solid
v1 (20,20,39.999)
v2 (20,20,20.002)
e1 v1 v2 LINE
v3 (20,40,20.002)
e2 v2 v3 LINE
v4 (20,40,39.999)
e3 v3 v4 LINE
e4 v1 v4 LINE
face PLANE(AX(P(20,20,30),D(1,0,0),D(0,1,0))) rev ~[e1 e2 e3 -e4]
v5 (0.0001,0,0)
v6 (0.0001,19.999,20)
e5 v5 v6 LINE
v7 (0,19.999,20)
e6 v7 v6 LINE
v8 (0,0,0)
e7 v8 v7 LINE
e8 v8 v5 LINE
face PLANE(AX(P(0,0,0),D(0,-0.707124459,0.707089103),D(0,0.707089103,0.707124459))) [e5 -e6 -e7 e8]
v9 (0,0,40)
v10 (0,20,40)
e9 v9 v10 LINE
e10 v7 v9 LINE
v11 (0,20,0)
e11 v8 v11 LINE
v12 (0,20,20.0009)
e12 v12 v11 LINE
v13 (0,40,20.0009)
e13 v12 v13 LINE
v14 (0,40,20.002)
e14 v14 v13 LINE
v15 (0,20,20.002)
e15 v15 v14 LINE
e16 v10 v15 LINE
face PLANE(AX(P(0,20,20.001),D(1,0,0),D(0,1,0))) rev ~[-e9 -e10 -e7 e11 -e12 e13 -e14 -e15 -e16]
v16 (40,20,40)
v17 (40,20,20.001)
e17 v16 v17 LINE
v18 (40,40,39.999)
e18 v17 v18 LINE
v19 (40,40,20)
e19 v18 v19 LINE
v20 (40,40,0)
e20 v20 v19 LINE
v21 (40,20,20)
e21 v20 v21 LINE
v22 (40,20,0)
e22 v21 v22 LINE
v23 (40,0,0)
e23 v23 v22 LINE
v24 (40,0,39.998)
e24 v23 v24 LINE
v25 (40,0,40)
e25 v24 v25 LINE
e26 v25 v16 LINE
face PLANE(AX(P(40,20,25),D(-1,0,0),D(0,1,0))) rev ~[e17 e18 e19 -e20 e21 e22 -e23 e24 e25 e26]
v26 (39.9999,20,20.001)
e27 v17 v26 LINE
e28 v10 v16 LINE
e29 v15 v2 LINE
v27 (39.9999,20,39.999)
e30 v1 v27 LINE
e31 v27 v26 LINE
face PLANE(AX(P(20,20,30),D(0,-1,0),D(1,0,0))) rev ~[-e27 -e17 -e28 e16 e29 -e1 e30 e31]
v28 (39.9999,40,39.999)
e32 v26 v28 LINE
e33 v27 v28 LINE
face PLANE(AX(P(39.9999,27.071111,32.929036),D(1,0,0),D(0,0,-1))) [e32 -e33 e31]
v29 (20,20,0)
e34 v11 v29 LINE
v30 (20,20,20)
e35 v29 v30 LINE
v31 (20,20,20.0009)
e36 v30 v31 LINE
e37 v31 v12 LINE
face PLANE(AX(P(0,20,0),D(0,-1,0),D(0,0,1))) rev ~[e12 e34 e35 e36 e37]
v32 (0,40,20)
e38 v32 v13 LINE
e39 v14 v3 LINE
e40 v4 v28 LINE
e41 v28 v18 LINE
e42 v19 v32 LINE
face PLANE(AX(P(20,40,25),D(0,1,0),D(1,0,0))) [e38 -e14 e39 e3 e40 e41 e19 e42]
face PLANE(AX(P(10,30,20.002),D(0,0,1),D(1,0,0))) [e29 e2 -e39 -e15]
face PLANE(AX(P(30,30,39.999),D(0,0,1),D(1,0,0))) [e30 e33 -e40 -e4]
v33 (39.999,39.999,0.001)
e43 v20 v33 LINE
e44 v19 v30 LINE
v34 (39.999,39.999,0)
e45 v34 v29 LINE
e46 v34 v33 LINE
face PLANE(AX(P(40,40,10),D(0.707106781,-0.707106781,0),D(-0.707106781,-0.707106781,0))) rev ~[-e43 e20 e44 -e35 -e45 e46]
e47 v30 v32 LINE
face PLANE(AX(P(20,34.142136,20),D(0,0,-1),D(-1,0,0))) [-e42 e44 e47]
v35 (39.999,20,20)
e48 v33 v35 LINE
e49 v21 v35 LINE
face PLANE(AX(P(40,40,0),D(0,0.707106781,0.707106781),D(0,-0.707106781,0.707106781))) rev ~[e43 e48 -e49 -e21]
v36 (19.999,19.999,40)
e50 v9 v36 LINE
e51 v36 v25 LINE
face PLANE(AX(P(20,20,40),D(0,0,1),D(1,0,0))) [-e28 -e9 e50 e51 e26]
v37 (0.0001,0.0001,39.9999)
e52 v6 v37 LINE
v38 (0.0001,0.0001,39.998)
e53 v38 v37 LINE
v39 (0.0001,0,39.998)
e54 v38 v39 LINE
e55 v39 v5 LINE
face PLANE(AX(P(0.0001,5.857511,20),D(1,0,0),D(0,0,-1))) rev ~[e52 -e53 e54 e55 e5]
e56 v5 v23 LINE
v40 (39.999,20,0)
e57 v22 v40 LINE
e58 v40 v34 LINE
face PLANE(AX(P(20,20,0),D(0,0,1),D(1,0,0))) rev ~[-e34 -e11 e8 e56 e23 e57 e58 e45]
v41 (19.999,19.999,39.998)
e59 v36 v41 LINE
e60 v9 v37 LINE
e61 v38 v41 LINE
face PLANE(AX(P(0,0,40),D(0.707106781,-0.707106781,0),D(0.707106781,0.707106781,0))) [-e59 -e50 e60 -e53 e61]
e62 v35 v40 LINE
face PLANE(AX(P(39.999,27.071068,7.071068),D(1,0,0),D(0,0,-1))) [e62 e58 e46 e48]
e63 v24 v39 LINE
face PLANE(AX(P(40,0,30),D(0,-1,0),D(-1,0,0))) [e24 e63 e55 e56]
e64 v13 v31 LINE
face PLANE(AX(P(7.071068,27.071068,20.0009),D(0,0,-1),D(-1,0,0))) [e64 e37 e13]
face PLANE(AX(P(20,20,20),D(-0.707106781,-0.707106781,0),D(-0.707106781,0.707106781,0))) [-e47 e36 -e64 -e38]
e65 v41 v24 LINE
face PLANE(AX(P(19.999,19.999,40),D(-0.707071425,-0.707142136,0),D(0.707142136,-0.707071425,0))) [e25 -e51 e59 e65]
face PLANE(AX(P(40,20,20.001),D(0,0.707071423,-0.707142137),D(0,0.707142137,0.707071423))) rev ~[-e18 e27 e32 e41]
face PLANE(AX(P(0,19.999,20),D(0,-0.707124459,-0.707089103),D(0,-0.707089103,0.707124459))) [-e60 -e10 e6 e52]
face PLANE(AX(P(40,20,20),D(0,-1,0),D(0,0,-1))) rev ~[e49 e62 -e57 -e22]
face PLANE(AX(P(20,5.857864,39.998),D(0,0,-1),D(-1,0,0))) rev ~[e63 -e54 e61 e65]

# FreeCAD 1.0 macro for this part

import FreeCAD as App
import Part
import Sketcher
from FreeCAD import Vector
Q = App.Units.Quantity

doc = App.newDocument("Part")
body = doc.addObject("PartDesign::Body", "Body")

sketch1 = body.newObject("Sketcher::SketchObject", "Sketch")
sketch1.AttachmentSupport = (doc.getObject("XY_Plane"), [""])
sketch1.MapMode = "FlatFace"
sketch1.addGeometry([
    Part.LineSegment(Vector(0, 40, 0), Vector(0, 0, 0)),
    Part.LineSegment(Vector(0, 0, 0), Vector(40, 0, 0)),
    Part.LineSegment(Vector(40, 0, 0), Vector(40, 40, 0)),
    Part.LineSegment(Vector(40, 40, 0), Vector(0, 40, 0)),
], False)
sketch1.addConstraint([
    Sketcher.Constraint("Coincident", 0, 2, 1, 1),
    Sketcher.Constraint("Coincident", 1, 2, 2, 1),
    Sketcher.Constraint("Coincident", 2, 2, 3, 1),
    Sketcher.Constraint("Coincident", 3, 2, 0, 1),
    Sketcher.Constraint("Vertical", 0),
    Sketcher.Constraint("Horizontal", 1),
    Sketcher.Constraint("Vertical", 2),
    Sketcher.Constraint("Horizontal", 3),
    Sketcher.Constraint("Coincident", 0, 2, -1, 1),
    Sketcher.Constraint("Equal", 3, 0),
    Sketcher.Constraint("DistanceX", 1, 1, 1, 2, 40.0),
])
pad1 = body.newObject("PartDesign::Pad", "Pad")
pad1.Profile = sketch1
pad1.Length = 40

sketch2 = body.newObject("Sketcher::SketchObject", "Sketch001")
sketch2.AttachmentSupport = (doc.getObject("XY_Plane"), [""])
sketch2.MapMode = "FlatFace"
sketch2.AttachmentOffset = App.Placement(Vector(0, 0, 40), App.Rotation())
sketch2.addGeometry([
    Part.LineSegment(Vector(20, 40, 0), Vector(20, 20, 0)),
    Part.LineSegment(Vector(20, 20, 0), Vector(40, 20, 0)),
    Part.LineSegment(Vector(40, 20, 0), Vector(40, 40, 0)),
    Part.LineSegment(Vector(40, 40, 0), Vector(20, 40, 0)),
], False)
sketch2.addConstraint([
    Sketcher.Constraint("Coincident", 0, 2, 1, 1),
    Sketcher.Constraint("Coincident", 1, 2, 2, 1),
    Sketcher.Constraint("Coincident", 2, 2, 3, 1),
    Sketcher.Constraint("Coincident", 3, 2, 0, 1),
    Sketcher.Constraint("Vertical", 0),
    Sketcher.Constraint("Horizontal", 1),
    Sketcher.Constraint("Vertical", 2),
    Sketcher.Constraint("Horizontal", 3),
    Sketcher.Constraint("Equal", 3, 0),
    Sketcher.Constraint("DistanceX", 1, 1, 1, 2, 20.0),
    Sketcher.Constraint("DistanceX", -1, 1, 0, 2, 20.0),
    Sketcher.Constraint("DistanceY", -1, 1, 0, 2, 20.0),
])
pocket1 = body.newObject("PartDesign::Pocket", "Pocket")
pocket1.Profile = sketch2
pocket1.Length = 20

sketch3 = body.newObject("Sketcher::SketchObject", "Sketch002")
sketch3.AttachmentSupport = (doc.getObject("XY_Plane"), [""])
sketch3.MapMode = "FlatFace"
sketch3.AttachmentOffset = App.Placement(Vector(0, 0, 40), App.Rotation())
sketch3.addGeometry([
    Part.LineSegment(Vector(0, 40, 0), Vector(0, 20, 0)),
    Part.LineSegment(Vector(0, 20, 0), Vector(20, 20, 0)),
    Part.LineSegment(Vector(20, 20, 0), Vector(20, 40, 0)),
    Part.LineSegment(Vector(20, 40, 0), Vector(0, 40, 0)),
], False)
sketch3.addConstraint([
    Sketcher.Constraint("Coincident", 0, 2, 1, 1),
    Sketcher.Constraint("Coincident", 1, 2, 2, 1),
    Sketcher.Constraint("Coincident", 2, 2, 3, 1),
    Sketcher.Constraint("Coincident", 3, 2, 0, 1),
    Sketcher.Constraint("Vertical", 0),
    Sketcher.Constraint("Horizontal", 1),
    Sketcher.Constraint("Vertical", 2),
    Sketcher.Constraint("Horizontal", 3),
    Sketcher.Constraint("PointOnObject", 0, 2, -2),
    Sketcher.Constraint("Equal", 3, 0),
    Sketcher.Constraint("DistanceX", 1, 1, 1, 2, 20.0),
    Sketcher.Constraint("DistanceY", -1, 1, 0, 2, 20.0),
])
pocket2 = body.newObject("PartDesign::Pocket", "Pocket001")
pocket2.Profile = sketch3
pocket2.Length = 10

sketch4 = body.newObject("Sketcher::SketchObject", "Sketch003")
sketch4.AttachmentSupport = (doc.getObject("XY_Plane"), [""])
sketch4.MapMode = "FlatFace"
sketch4.addGeometry([
    Part.LineSegment(Vector(40, 40, 0), Vector(20, 20, 0)),
    Part.LineSegment(Vector(20, 20, 0), Vector(0, 40, 0)),
    Part.LineSegment(Vector(0, 40, 0), Vector(40, 40, 0)),
], False)
sketch4.addConstraint([
    Sketcher.Constraint("Coincident", 0, 2, 1, 1),
    Sketcher.Constraint("Coincident", 1, 2, 2, 1),
    Sketcher.Constraint("Coincident", 2, 2, 0, 1),
    Sketcher.Constraint("Horizontal", 2),
    Sketcher.Constraint("PointOnObject", 1, 2, -2),
    Sketcher.Constraint("Perpendicular", 0, 1),
    Sketcher.Constraint("Equal", 0, 1),
    Sketcher.Constraint("DistanceX", 2, 1, 2, 2, 40.0),
    Sketcher.Constraint("DistanceY", -1, 1, 0, 2, 20.0),
])
pocket3 = body.newObject("PartDesign::Pocket", "Pocket002")
pocket3.Profile = sketch4
pocket3.Length = 10
pocket3.Reversed = True

sketch5 = body.newObject("Sketcher::SketchObject", "Sketch004")
sketch5.AttachmentSupport = (doc.getObject("XY_Plane"), [""])
sketch5.MapMode = "FlatFace"
sketch5.AttachmentOffset = App.Placement(Vector(0, 0, 20), App.Rotation())
sketch5.addGeometry([
    Part.LineSegment(Vector(20, 40, 0), Vector(20, 20, 0)),
    Part.LineSegment(Vector(20, 20, 0), Vector(40, 20, 0)),
    Part.LineSegment(Vector(40, 20, 0), Vector(40, 40, 0)),
    Part.LineSegment(Vector(40, 40, 0), Vector(20, 40, 0)),
], False)
sketch5.addConstraint([
    Sketcher.Constraint("Coincident", 0, 2, 1, 1),
    Sketcher.Constraint("Coincident", 1, 2, 2, 1),
    Sketcher.Constraint("Coincident", 2, 2, 3, 1),
    Sketcher.Constraint("Coincident", 3, 2, 0, 1),
    Sketcher.Constraint("Vertical", 0),
    Sketcher.Constraint("Horizontal", 1),
    Sketcher.Constraint("Vertical", 2),
    Sketcher.Constraint("Horizontal", 3),
    Sketcher.Constraint("Equal", 3, 0),
    Sketcher.Constraint("DistanceX", 1, 1, 1, 2, 20.0),
    Sketcher.Constraint("DistanceX", -1, 1, 0, 2, 20.0),
    Sketcher.Constraint("DistanceY", -1, 1, 0, 2, 20.0),
])
pad2 = body.newObject("PartDesign::Pad", "Pad001")
pad2.Profile = sketch5
pad2.Length = 10

sketch6 = body.newObject("Sketcher::SketchObject", "Sketch005")
sketch6.AttachmentSupport = (doc.getObject("XY_Plane"), [""])
sketch6.MapMode = "FlatFace"
sketch6.AttachmentOffset = App.Placement(Vector(0, 0, 10), App.Rotation())
sketch6.addGeometry([
    Part.LineSegment(Vector(40, 40, 0), Vector(20, 20, 0)),
    Part.LineSegment(Vector(20, 20, 0), Vector(0, 40, 0)),
    Part.LineSegment(Vector(0, 40, 0), Vector(40, 40, 0)),
], False)
sketch6.addConstraint([
    Sketcher.Constraint("Coincident", 0, 2, 1, 1),
    Sketcher.Constraint("Coincident", 1, 2, 2, 1),
    Sketcher.Constraint("Coincident", 2, 2, 0, 1),
    Sketcher.Constraint("Horizontal", 2),
    Sketcher.Constraint("PointOnObject", 1, 2, -2),
    Sketcher.Constraint("Perpendicular", 0, 1),
    Sketcher.Constraint("Equal", 0, 1),
    Sketcher.Constraint("DistanceX", 2, 1, 2, 2, 40.0),
    Sketcher.Constraint("DistanceY", -1, 1, 0, 2, 20.0),
])
pocket4 = body.newObject("PartDesign::Pocket", "Pocket003")
pocket4.Profile = sketch6
pocket4.Length = 10
pocket4.Reversed = True

sketch7 = body.newObject("Sketcher::SketchObject", "Sketch006")
sketch7.AttachmentSupport = (doc.getObject("XY_Plane"), [""])
sketch7.MapMode = "FlatFace"
sketch7.AttachmentOffset = App.Placement(Vector(0, 0, 30), App.Rotation())
sketch7.addGeometry([
    Part.LineSegment(Vector(20, 40, 0), Vector(20, 20, 0)),
    Part.LineSegment(Vector(20, 20, 0), Vector(40, 20, 0)),
    Part.LineSegment(Vector(40, 20, 0), Vector(40, 40, 0)),
    Part.LineSegment(Vector(40, 40, 0), Vector(20, 40, 0)),
], False)
sketch7.addConstraint([
    Sketcher.Constraint("Coincident", 0, 2, 1, 1),
    Sketcher.Constraint("Coincident", 1, 2, 2, 1),
    Sketcher.Constraint("Coincident", 2, 2, 3, 1),
    Sketcher.Constraint("Coincident", 3, 2, 0, 1),
    Sketcher.Constraint("Vertical", 0),
    Sketcher.Constraint("Horizontal", 1),
    Sketcher.Constraint("Vertical", 2),
    Sketcher.Constraint("Horizontal", 3),
    Sketcher.Constraint("Equal", 3, 0),
    Sketcher.Constraint("DistanceX", 1, 1, 1, 2, 20.0),
    Sketcher.Constraint("DistanceX", -1, 1, 0, 2, 20.0),
    Sketcher.Constraint("DistanceY", -1, 1, 0, 2, 20.0),
])
pocket5 = body.newObject("PartDesign::Pocket", "Pocket004")
pocket5.Profile = sketch7
pocket5.Length = 5

sketch8 = body.newObject("Sketcher::SketchObject", "Sketch007")
sketch8.AttachmentSupport = (doc.getObject("XY_Plane"), [""])
sketch8.MapMode = "FlatFace"
sketch8.AttachmentOffset = App.Placement(Vector(0, 0, 40), App.Rotation())
sketch8.addGeometry([
    Part.LineSegment(Vector(20, 20, 0), Vector(0, 0, 0)),
    Part.LineSegment(Vector(0, 0, 0), Vector(40, 0, 0)),
    Part.LineSegment(Vector(40, 0, 0), Vector(20, 20, 0)),
], False)
sketch8.addConstraint([
    Sketcher.Constraint("Coincident", 0, 2, 1, 1),
    Sketcher.Constraint("Coincident", 1, 2, 2, 1),
    Sketcher.Constraint("Coincident", 2, 2, 0, 1),
    Sketcher.Constraint("Horizontal", 1),
    Sketcher.Constraint("Coincident", 0, 2, -1, 1),
    Sketcher.Constraint("DistanceX", 1, 1, 1, 2, 40.0),
    Sketcher.Constraint("Angle", 0, Q("-135 deg")),
    Sketcher.Constraint("DistanceX", -1, 1, 2, 2, 19.999),
])
pocket6 = body.newObject("PartDesign::Pocket", "Pocket005")
pocket6.Profile = sketch8
pocket6.Length = 10

sketch9 = body.newObject("Sketcher::SketchObject", "Sketch008")
sketch9.AttachmentSupport = (doc.getObject("YZ_Plane"), [""])
sketch9.MapMode = "FlatFace"
sketch9.addGeometry([
    Part.LineSegment(Vector(40, 0, 0), Vector(20, 0, 0)),
    Part.LineSegment(Vector(20, 0, 0), Vector(20, 20, 0)),
    Part.LineSegment(Vector(20, 20, 0), Vector(40, 20, 0)),
    Part.LineSegment(Vector(40, 20, 0), Vector(40, 0, 0)),
], False)
sketch9.addConstraint([
    Sketcher.Constraint("Coincident", 0, 2, 1, 1),
    Sketcher.Constraint("Coincident", 1, 2, 2, 1),
    Sketcher.Constraint("Coincident", 2, 2, 3, 1),
    Sketcher.Constraint("Coincident", 3, 2, 0, 1),
    Sketcher.Constraint("Horizontal", 0),
    Sketcher.Constraint("Vertical", 1),
    Sketcher.Constraint("Horizontal", 2),
    Sketcher.Constraint("Vertical", 3),
    Sketcher.Constraint("PointOnObject", 0, 2, -1),
    Sketcher.Constraint("Equal", 2, 1),
    Sketcher.Constraint("DistanceX", 0, 2, 0, 1, 20.0),
    Sketcher.Constraint("DistanceX", -1, 1, 0, 2, 20.0),
])
pocket7 = body.newObject("PartDesign::Pocket", "Pocket006")
pocket7.Profile = sketch9
pocket7.Length = 20
pocket7.Reversed = True

sketch10 = body.newObject("Sketcher::SketchObject", "Sketch009")
sketch10.AttachmentSupport = (doc.getObject("XY_Plane"), [""])
sketch10.MapMode = "FlatFace"
sketch10.AttachmentOffset = App.Placement(Vector(0, 0, 20), App.Rotation())
sketch10.addGeometry([
    Part.LineSegment(Vector(0, 40, 0), Vector(20, 20, 0)),
    Part.LineSegment(Vector(20, 20, 0), Vector(0, 20, 0)),
    Part.LineSegment(Vector(0, 20, 0), Vector(0, 40, 0)),
], False)
sketch10.addConstraint([
    Sketcher.Constraint("Coincident", 0, 2, 1, 1),
    Sketcher.Constraint("Coincident", 1, 2, 2, 1),
    Sketcher.Constraint("Coincident", 2, 2, 0, 1),
    Sketcher.Constraint("Horizontal", 1),
    Sketcher.Constraint("Vertical", 2),
    Sketcher.Constraint("PointOnObject", 1, 2, -2),
    Sketcher.Constraint("Equal", 1, 2),
    Sketcher.Constraint("DistanceX", 1, 2, 1, 1, 20.0),
    Sketcher.Constraint("DistanceY", -1, 1, 0, 2, 20.0),
])
pocket8 = body.newObject("PartDesign::Pocket", "Pocket007")
pocket8.Profile = sketch10
pocket8.Length = 0.001
pocket8.Reversed = True

sketch11 = body.newObject("Sketcher::SketchObject", "Sketch010")
sketch11.AttachmentSupport = (doc.getObject("YZ_Plane"), [""])
sketch11.MapMode = "FlatFace"
sketch11.AttachmentOffset = App.Placement(Vector(0, 0, 40), App.Rotation())
sketch11.addGeometry([
    Part.LineSegment(Vector(40, 0, 0), Vector(20, 20, 0)),
    Part.LineSegment(Vector(20, 20, 0), Vector(20, 0, 0)),
    Part.LineSegment(Vector(20, 0, 0), Vector(40, 0, 0)),
], False)
sketch11.addConstraint([
    Sketcher.Constraint("Coincident", 0, 2, 1, 1),
    Sketcher.Constraint("Coincident", 1, 2, 2, 1),
    Sketcher.Constraint("Coincident", 2, 2, 0, 1),
    Sketcher.Constraint("Vertical", 1),
    Sketcher.Constraint("Horizontal", 2),
    Sketcher.Constraint("PointOnObject", 1, 2, -1),
    Sketcher.Constraint("Equal", 2, 1),
    Sketcher.Constraint("DistanceX", 2, 1, 2, 2, 20.0),
    Sketcher.Constraint("DistanceX", -1, 1, 0, 2, 20.0),
])
pocket9 = body.newObject("PartDesign::Pocket", "Pocket008")
pocket9.Profile = sketch11
pocket9.Length = 0.001

sketch12 = body.newObject("Sketcher::SketchObject", "Sketch011")
sketch12.AttachmentSupport = (doc.getObject("XY_Plane"), [""])
sketch12.MapMode = "FlatFace"
sketch12.AttachmentOffset = App.Placement(Vector(0, 0, 25), App.Rotation())
sketch12.addGeometry([
    Part.LineSegment(Vector(20, 40, 0), Vector(20, 20, 0)),
    Part.LineSegment(Vector(20, 20, 0), Vector(40, 20, 0)),
    Part.LineSegment(Vector(40, 20, 0), Vector(40, 40, 0)),
    Part.LineSegment(Vector(40, 40, 0), Vector(20, 40, 0)),
], False)
sketch12.addConstraint([
    Sketcher.Constraint("Coincident", 0, 2, 1, 1),
    Sketcher.Constraint("Coincident", 1, 2, 2, 1),
    Sketcher.Constraint("Coincident", 2, 2, 3, 1),
    Sketcher.Constraint("Coincident", 3, 2, 0, 1),
    Sketcher.Constraint("Vertical", 0),
    Sketcher.Constraint("Horizontal", 1),
    Sketcher.Constraint("Vertical", 2),
    Sketcher.Constraint("Horizontal", 3),
    Sketcher.Constraint("Equal", 3, 0),
    Sketcher.Constraint("DistanceX", 1, 1, 1, 2, 20.0),
    Sketcher.Constraint("DistanceX", -1, 1, 0, 2, 20.0),
    Sketcher.Constraint("DistanceY", -1, 1, 0, 2, 20.0),
])
pad3 = body.newObject("PartDesign::Pad", "Pad002")
pad3.Profile = sketch12
pad3.Length = 14.999

sketch13 = body.newObject("Sketcher::SketchObject", "Sketch012")
sketch13.AttachmentSupport = (doc.getObject("YZ_Plane"), [""])
sketch13.MapMode = "FlatFace"
sketch13.AttachmentOffset = App.Placement(Vector(0, 0, 40), App.Rotation())
sketch13.addGeometry([
    Part.LineSegment(Vector(20, 40, 0), Vector(20, 20, 0)),
    Part.LineSegment(Vector(20, 20, 0), Vector(40, 40, 0)),
    Part.LineSegment(Vector(40, 40, 0), Vector(20, 40, 0)),
], False)
sketch13.addConstraint([
    Sketcher.Constraint("Coincident", 0, 2, 1, 1),
    Sketcher.Constraint("Coincident", 1, 2, 2, 1),
    Sketcher.Constraint("Coincident", 2, 2, 0, 1),
    Sketcher.Constraint("Vertical", 0),
    Sketcher.Constraint("Distance", 2, 20.0),
    Sketcher.Constraint("DistanceX", -1, 1, 0, 2, 20.0),
    Sketcher.Constraint("DistanceY", -1, 1, 2, 2, 40.0),
    Sketcher.Constraint("DistanceY", 0, 2, 0, 1, 19.999),
    Sketcher.Constraint("DistanceY", -1, 1, 1, 2, 39.999),
])
pocket10 = body.newObject("PartDesign::Pocket", "Pocket009")
pocket10.Profile = sketch13
pocket10.Length = 0.0001

sketch14 = body.newObject("Sketcher::SketchObject", "Sketch013")
sketch14.AttachmentSupport = (doc.getObject("XY_Plane"), [""])
sketch14.MapMode = "FlatFace"
sketch14.AttachmentOffset = App.Placement(Vector(0, 0, 20.001), App.Rotation())
sketch14.addGeometry([
    Part.LineSegment(Vector(20, 20, 0), Vector(0, 20, 0)),
    Part.LineSegment(Vector(0, 20, 0), Vector(0, 40, 0)),
    Part.LineSegment(Vector(0, 40, 0), Vector(20, 20, 0)),
], False)
sketch14.addConstraint([
    Sketcher.Constraint("Coincident", 0, 2, 1, 1),
    Sketcher.Constraint("Coincident", 1, 2, 2, 1),
    Sketcher.Constraint("Coincident", 2, 2, 0, 1),
    Sketcher.Constraint("Horizontal", 0),
    Sketcher.Constraint("Vertical", 1),
    Sketcher.Constraint("PointOnObject", 0, 2, -2),
    Sketcher.Constraint("Equal", 0, 1),
    Sketcher.Constraint("DistanceX", 0, 2, 0, 1, 20.0),
    Sketcher.Constraint("DistanceY", -1, 1, 0, 2, 20.0),
])
pad4 = body.newObject("PartDesign::Pad", "Pad003")
pad4.Profile = sketch14
pad4.Length = 0.0001
pad4.Reversed = True

sketch15 = body.newObject("Sketcher::SketchObject", "Sketch014")
sketch15.AttachmentSupport = (doc.getObject("XY_Plane"), [""])
sketch15.MapMode = "FlatFace"
sketch15.AttachmentOffset = App.Placement(Vector(0, 0, 30), App.Rotation())
sketch15.addGeometry([
    Part.LineSegment(Vector(0, 40, 0), Vector(0, 20, 0)),
    Part.LineSegment(Vector(0, 20, 0), Vector(20, 20, 0)),
    Part.LineSegment(Vector(20, 20, 0), Vector(20, 40, 0)),
    Part.LineSegment(Vector(20, 40, 0), Vector(0, 40, 0)),
], False)
sketch15.addConstraint([
    Sketcher.Constraint("Coincident", 0, 2, 1, 1),
    Sketcher.Constraint("Coincident", 1, 2, 2, 1),
    Sketcher.Constraint("Coincident", 2, 2, 3, 1),
    Sketcher.Constraint("Coincident", 3, 2, 0, 1),
    Sketcher.Constraint("Vertical", 0),
    Sketcher.Constraint("Horizontal", 1),
    Sketcher.Constraint("Vertical", 2),
    Sketcher.Constraint("Horizontal", 3),
    Sketcher.Constraint("PointOnObject", 0, 2, -2),
    Sketcher.Constraint("Equal", 3, 0),
    Sketcher.Constraint("DistanceX", 1, 1, 1, 2, 20.0),
    Sketcher.Constraint("DistanceY", -1, 1, 0, 2, 20.0),
])
pocket11 = body.newObject("PartDesign::Pocket", "Pocket010")
pocket11.Profile = sketch15
pocket11.Length = 9.998

sketch16 = body.newObject("Sketcher::SketchObject", "Sketch015")
sketch16.AttachmentSupport = (doc.getObject("XY_Plane"), [""])
sketch16.MapMode = "FlatFace"
sketch16.AttachmentOffset = App.Placement(Vector(0, 0, 30), App.Rotation())
sketch16.addGeometry([
    Part.LineSegment(Vector(20, 20, 0), Vector(0, 0, 0)),
    Part.LineSegment(Vector(0, 0, 0), Vector(40, 0, 0)),
    Part.LineSegment(Vector(40, 0, 0), Vector(20, 20, 0)),
], False)
sketch16.addConstraint([
    Sketcher.Constraint("Coincident", 0, 2, 1, 1),
    Sketcher.Constraint("Coincident", 1, 2, 2, 1),
    Sketcher.Constraint("Coincident", 2, 2, 0, 1),
    Sketcher.Constraint("Horizontal", 1),
    Sketcher.Constraint("Coincident", 0, 2, -1, 1),
    Sketcher.Constraint("Perpendicular", 0, 2),
    Sketcher.Constraint("Equal", 0, 2),
    Sketcher.Constraint("DistanceX", 1, 1, 1, 2, 40.0),
])
pad5 = body.newObject("PartDesign::Pad", "Pad004")
pad5.Profile = sketch16
pad5.Length = 9.998

sketch17 = body.newObject("Sketcher::SketchObject", "Sketch016")
sketch17.AttachmentSupport = (doc.getObject("YZ_Plane"), [""])
sketch17.MapMode = "FlatFace"
sketch17.addGeometry([
    Part.LineSegment(Vector(20, 20, 0), Vector(0, 0, 0)),
    Part.LineSegment(Vector(0, 0, 0), Vector(0, 40, 0)),
    Part.LineSegment(Vector(0, 40, 0), Vector(20, 20, 0)),
], False)
sketch17.addConstraint([
    Sketcher.Constraint("Coincident", 0, 2, 1, 1),
    Sketcher.Constraint("Coincident", 1, 2, 2, 1),
    Sketcher.Constraint("Coincident", 2, 2, 0, 1),
    Sketcher.Constraint("Vertical", 1),
    Sketcher.Constraint("Coincident", 0, 2, -1, 1),
    Sketcher.Constraint("Equal", 0, 2),
    Sketcher.Constraint("DistanceY", 1, 1, 1, 2, 40.0),
    Sketcher.Constraint("DistanceX", -1, 1, 2, 2, 19.999),
])
pocket12 = body.newObject("PartDesign::Pocket", "Pocket011")
pocket12.Profile = sketch17
pocket12.Length = 0.0001
pocket12.Reversed = True

doc.recompute()
